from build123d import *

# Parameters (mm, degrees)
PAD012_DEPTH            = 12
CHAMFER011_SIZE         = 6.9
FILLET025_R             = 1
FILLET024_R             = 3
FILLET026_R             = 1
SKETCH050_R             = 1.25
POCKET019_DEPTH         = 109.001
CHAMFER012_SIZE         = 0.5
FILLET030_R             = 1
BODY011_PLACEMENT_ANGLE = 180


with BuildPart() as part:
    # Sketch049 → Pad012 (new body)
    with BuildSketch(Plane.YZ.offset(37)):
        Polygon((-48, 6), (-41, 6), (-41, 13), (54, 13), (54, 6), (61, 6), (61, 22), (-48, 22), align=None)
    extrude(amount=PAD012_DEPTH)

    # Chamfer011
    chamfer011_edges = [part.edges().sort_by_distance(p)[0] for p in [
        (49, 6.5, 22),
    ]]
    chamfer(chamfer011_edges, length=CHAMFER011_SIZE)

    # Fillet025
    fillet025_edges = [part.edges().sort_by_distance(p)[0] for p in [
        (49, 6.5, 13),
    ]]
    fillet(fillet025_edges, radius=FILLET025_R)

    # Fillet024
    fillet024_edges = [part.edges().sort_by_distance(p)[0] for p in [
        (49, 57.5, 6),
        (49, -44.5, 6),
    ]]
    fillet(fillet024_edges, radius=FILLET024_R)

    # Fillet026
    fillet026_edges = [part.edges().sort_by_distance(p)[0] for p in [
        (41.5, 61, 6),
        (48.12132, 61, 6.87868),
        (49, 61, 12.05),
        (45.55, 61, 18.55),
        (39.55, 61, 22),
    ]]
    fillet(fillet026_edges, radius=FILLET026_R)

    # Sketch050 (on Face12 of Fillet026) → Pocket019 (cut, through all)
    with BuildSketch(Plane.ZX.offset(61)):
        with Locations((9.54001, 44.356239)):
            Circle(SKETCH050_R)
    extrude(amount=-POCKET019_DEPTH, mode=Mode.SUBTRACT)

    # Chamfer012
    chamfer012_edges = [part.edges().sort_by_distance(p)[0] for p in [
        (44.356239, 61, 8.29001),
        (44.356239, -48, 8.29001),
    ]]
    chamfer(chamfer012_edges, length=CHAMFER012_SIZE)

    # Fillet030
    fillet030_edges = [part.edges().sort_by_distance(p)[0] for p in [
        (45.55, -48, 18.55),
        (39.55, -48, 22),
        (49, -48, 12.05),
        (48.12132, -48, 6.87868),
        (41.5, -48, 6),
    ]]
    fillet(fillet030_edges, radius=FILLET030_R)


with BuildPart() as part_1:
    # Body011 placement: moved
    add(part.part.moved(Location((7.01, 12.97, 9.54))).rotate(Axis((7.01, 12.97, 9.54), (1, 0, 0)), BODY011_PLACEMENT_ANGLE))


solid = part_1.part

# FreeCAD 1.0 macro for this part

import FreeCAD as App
import Part
import Sketcher


def edges_at(feature, points):
    """Names of the edges that pass closest to the given points."""
    edges = feature.Shape.Edges
    near = lambda p: min(range(len(edges)), key=lambda i: edges[i].distToShape(Part.Vertex(*p))[0])
    return sorted({f"Edge{near(p) + 1}" for p in points})


def add_polygon(sketch, points):
    """Adds a closed chain of lines whose ends are joined by coincident constraints."""
    first, n = sketch.GeometryCount, len(points)
    for a, b in zip(points, points[1:] + points[:1]):
        sketch.addGeometry(Part.LineSegment(App.Vector(*a, 0), App.Vector(*b, 0)), False)
    for i in range(n):
        sketch.addConstraint(Sketcher.Constraint("Coincident", first + i, 2, first + (i + 1) % n, 1))

doc = App.newDocument("Part")
params = doc.addObject("Spreadsheet::Sheet", "Params")
for row, (alias, value) in enumerate([
    ("sketch1_width", "7 mm"),
    ("sketch1_width2", "95 mm"),
    ("sketch1_height", "16 mm"),
    ("pad1_length", "12 mm"),
    ("chamfer_size", "6.9 mm"),
    ("fillet_radius", "1 mm"),
    ("fillet2_radius", "3 mm"),
    ("fillet3_radius", "1 mm"),
    ("sketch2_diameter", "2.5 mm"),
    ("chamfer2_size", "0.5 mm"),
    ("fillet4_radius", "1 mm"),
], start=1):
    params.set(f"A{row}", alias)
    params.set(f"B{row}", "=" + value)
    params.setAlias(f"B{row}", alias)

body = doc.addObject("PartDesign::Body", "Body")

# Sketch on YZ plane
sketch1 = doc.addObject("Sketcher::SketchObject", "Sketch")
body.addObject(sketch1)
sketch1.AttachmentSupport = (doc.YZ_Plane, [""])
sketch1.MapMode = "FlatFace"
sketch1.AttachmentOffset = App.Placement(App.Vector(0, 0, 37), App.Rotation())
add_polygon(sketch1, [(-48, 6), (-41, 6), (-41, 13), (54, 13), (54, 6), (61, 6), (61, 22), (-48, 22)])  # lines 0-7
sketch1.addConstraint(Sketcher.Constraint("Horizontal", 0))
sketch1.addConstraint(Sketcher.Constraint("Vertical", 1))
sketch1.addConstraint(Sketcher.Constraint("Horizontal", 2))
sketch1.addConstraint(Sketcher.Constraint("Vertical", 3))
sketch1.addConstraint(Sketcher.Constraint("Horizontal", 4))
sketch1.addConstraint(Sketcher.Constraint("Vertical", 5))
sketch1.addConstraint(Sketcher.Constraint("Horizontal", 6))
sketch1.addConstraint(Sketcher.Constraint("Vertical", 7))
sketch1.addConstraint(Sketcher.Constraint("Horizontal", 0, 2, 3, 2))
sketch1.addConstraint(Sketcher.Constraint("Equal", 0, 4))
sketch1.addConstraint(Sketcher.Constraint("Equal", 4, 1))
sketch1.addConstraint(Sketcher.Constraint("DistanceX", 0, 1, 0, 2, 7.0))
sketch1.addConstraint(Sketcher.Constraint("DistanceX", 2, 1, 2, 2, 95.0))
sketch1.addConstraint(Sketcher.Constraint("DistanceY", 5, 1, 5, 2, 16.0))
sketch1.addConstraint(Sketcher.Constraint("DistanceX", 0, 2, -1, 1, 41.0))
sketch1.addConstraint(Sketcher.Constraint("DistanceY", -1, 1, 0, 2, 6.0))
sketch1.setExpression("Constraints[19]", "Params.sketch1_width")
sketch1.setExpression("Constraints[20]", "Params.sketch1_width2")
sketch1.setExpression("Constraints[21]", "Params.sketch1_height")
pad1 = doc.addObject("PartDesign::Pad", "Pad")
body.addObject(pad1)
pad1.Profile = sketch1
pad1.setExpression("Length", "Params.pad1_length")
doc.recompute()

chamfer = doc.addObject("PartDesign::Chamfer", "Chamfer")
body.addObject(chamfer)
chamfer.Base = (pad1, edges_at(pad1, [(49, 6.5, 22)]))
chamfer.setExpression("Size", "Params.chamfer_size")
doc.recompute()

fillet = doc.addObject("PartDesign::Fillet", "Fillet")
body.addObject(fillet)
fillet.Base = (chamfer, edges_at(chamfer, [(49, 6.5, 13)]))
fillet.setExpression("Radius", "Params.fillet_radius")
doc.recompute()

fillet2 = doc.addObject("PartDesign::Fillet", "Fillet001")
body.addObject(fillet2)
fillet2.Base = (fillet, edges_at(fillet, [(49, 57.5, 6), (49, -44.5, 6)]))
fillet2.setExpression("Radius", "Params.fillet2_radius")
doc.recompute()

fillet3 = doc.addObject("PartDesign::Fillet", "Fillet002")
body.addObject(fillet3)
fillet3.Base = (fillet2, edges_at(fillet2, [
    (41.5, 61, 6),
    (48.121, 61, 6.879),
    (49, 61, 12.05),
    (45.55, 61, 18.55),
    (39.55, 61, 22),
]))
fillet3.setExpression("Radius", "Params.fillet3_radius")

# Sketch on XZ plane
sketch2 = doc.addObject("Sketcher::SketchObject", "Sketch001")
body.addObject(sketch2)
sketch2.AttachmentSupport = (doc.XZ_Plane, [""])
sketch2.MapMode = "FlatFace"
sketch2.AttachmentOffset = App.Placement(App.Vector(0, 0, -61), App.Rotation())
sketch2.addGeometry(Part.Circle(App.Vector(44.4, 9.5, 0), App.Vector(0, 0, 1), 1.2), False)
sketch2.addConstraint(Sketcher.Constraint("Diameter", 0, 2.5))
sketch2.addConstraint(Sketcher.Constraint("DistanceX", -1, 1, 0, 3, 44.356239))
sketch2.addConstraint(Sketcher.Constraint("DistanceY", -1, 1, 0, 3, 9.54001))
sketch2.setExpression("Constraints[0]", "Params.sketch2_diameter")
pocket1 = doc.addObject("PartDesign::Pocket", "Pocket")
body.addObject(pocket1)
pocket1.Profile = sketch2
pocket1.Type = "ThroughAll"
pocket1.Reversed = True
doc.recompute()

chamfer2 = doc.addObject("PartDesign::Chamfer", "Chamfer001")
body.addObject(chamfer2)
chamfer2.Base = (pocket1, edges_at(pocket1, [(44.356, 61, 8.29), (44.356, -48, 8.29)]))
chamfer2.setExpression("Size", "Params.chamfer2_size")
doc.recompute()

fillet4 = doc.addObject("PartDesign::Fillet", "Fillet003")
body.addObject(fillet4)
fillet4.Base = (chamfer2, edges_at(chamfer2, [
    (45.55, -48, 18.55),
    (39.55, -48, 22),
    (49, -48, 12.05),
    (48.121, -48, 6.879),
    (41.5, -48, 6),
]))
fillet4.setExpression("Radius", "Params.fillet4_radius")
body2 = doc.addObject("PartDesign::Body", "Body001")
doc.recompute()

body.Placement = App.Placement(App.Vector(7.01, 12.97, 9.54), App.Rotation(App.Vector(1, 0, 0), 180))
boolean = doc.addObject("PartDesign::Boolean", "Boolean")
body2.addObject(boolean)
boolean.Type = "Fuse"
boolean.addObjects([body])

doc.recompute()
